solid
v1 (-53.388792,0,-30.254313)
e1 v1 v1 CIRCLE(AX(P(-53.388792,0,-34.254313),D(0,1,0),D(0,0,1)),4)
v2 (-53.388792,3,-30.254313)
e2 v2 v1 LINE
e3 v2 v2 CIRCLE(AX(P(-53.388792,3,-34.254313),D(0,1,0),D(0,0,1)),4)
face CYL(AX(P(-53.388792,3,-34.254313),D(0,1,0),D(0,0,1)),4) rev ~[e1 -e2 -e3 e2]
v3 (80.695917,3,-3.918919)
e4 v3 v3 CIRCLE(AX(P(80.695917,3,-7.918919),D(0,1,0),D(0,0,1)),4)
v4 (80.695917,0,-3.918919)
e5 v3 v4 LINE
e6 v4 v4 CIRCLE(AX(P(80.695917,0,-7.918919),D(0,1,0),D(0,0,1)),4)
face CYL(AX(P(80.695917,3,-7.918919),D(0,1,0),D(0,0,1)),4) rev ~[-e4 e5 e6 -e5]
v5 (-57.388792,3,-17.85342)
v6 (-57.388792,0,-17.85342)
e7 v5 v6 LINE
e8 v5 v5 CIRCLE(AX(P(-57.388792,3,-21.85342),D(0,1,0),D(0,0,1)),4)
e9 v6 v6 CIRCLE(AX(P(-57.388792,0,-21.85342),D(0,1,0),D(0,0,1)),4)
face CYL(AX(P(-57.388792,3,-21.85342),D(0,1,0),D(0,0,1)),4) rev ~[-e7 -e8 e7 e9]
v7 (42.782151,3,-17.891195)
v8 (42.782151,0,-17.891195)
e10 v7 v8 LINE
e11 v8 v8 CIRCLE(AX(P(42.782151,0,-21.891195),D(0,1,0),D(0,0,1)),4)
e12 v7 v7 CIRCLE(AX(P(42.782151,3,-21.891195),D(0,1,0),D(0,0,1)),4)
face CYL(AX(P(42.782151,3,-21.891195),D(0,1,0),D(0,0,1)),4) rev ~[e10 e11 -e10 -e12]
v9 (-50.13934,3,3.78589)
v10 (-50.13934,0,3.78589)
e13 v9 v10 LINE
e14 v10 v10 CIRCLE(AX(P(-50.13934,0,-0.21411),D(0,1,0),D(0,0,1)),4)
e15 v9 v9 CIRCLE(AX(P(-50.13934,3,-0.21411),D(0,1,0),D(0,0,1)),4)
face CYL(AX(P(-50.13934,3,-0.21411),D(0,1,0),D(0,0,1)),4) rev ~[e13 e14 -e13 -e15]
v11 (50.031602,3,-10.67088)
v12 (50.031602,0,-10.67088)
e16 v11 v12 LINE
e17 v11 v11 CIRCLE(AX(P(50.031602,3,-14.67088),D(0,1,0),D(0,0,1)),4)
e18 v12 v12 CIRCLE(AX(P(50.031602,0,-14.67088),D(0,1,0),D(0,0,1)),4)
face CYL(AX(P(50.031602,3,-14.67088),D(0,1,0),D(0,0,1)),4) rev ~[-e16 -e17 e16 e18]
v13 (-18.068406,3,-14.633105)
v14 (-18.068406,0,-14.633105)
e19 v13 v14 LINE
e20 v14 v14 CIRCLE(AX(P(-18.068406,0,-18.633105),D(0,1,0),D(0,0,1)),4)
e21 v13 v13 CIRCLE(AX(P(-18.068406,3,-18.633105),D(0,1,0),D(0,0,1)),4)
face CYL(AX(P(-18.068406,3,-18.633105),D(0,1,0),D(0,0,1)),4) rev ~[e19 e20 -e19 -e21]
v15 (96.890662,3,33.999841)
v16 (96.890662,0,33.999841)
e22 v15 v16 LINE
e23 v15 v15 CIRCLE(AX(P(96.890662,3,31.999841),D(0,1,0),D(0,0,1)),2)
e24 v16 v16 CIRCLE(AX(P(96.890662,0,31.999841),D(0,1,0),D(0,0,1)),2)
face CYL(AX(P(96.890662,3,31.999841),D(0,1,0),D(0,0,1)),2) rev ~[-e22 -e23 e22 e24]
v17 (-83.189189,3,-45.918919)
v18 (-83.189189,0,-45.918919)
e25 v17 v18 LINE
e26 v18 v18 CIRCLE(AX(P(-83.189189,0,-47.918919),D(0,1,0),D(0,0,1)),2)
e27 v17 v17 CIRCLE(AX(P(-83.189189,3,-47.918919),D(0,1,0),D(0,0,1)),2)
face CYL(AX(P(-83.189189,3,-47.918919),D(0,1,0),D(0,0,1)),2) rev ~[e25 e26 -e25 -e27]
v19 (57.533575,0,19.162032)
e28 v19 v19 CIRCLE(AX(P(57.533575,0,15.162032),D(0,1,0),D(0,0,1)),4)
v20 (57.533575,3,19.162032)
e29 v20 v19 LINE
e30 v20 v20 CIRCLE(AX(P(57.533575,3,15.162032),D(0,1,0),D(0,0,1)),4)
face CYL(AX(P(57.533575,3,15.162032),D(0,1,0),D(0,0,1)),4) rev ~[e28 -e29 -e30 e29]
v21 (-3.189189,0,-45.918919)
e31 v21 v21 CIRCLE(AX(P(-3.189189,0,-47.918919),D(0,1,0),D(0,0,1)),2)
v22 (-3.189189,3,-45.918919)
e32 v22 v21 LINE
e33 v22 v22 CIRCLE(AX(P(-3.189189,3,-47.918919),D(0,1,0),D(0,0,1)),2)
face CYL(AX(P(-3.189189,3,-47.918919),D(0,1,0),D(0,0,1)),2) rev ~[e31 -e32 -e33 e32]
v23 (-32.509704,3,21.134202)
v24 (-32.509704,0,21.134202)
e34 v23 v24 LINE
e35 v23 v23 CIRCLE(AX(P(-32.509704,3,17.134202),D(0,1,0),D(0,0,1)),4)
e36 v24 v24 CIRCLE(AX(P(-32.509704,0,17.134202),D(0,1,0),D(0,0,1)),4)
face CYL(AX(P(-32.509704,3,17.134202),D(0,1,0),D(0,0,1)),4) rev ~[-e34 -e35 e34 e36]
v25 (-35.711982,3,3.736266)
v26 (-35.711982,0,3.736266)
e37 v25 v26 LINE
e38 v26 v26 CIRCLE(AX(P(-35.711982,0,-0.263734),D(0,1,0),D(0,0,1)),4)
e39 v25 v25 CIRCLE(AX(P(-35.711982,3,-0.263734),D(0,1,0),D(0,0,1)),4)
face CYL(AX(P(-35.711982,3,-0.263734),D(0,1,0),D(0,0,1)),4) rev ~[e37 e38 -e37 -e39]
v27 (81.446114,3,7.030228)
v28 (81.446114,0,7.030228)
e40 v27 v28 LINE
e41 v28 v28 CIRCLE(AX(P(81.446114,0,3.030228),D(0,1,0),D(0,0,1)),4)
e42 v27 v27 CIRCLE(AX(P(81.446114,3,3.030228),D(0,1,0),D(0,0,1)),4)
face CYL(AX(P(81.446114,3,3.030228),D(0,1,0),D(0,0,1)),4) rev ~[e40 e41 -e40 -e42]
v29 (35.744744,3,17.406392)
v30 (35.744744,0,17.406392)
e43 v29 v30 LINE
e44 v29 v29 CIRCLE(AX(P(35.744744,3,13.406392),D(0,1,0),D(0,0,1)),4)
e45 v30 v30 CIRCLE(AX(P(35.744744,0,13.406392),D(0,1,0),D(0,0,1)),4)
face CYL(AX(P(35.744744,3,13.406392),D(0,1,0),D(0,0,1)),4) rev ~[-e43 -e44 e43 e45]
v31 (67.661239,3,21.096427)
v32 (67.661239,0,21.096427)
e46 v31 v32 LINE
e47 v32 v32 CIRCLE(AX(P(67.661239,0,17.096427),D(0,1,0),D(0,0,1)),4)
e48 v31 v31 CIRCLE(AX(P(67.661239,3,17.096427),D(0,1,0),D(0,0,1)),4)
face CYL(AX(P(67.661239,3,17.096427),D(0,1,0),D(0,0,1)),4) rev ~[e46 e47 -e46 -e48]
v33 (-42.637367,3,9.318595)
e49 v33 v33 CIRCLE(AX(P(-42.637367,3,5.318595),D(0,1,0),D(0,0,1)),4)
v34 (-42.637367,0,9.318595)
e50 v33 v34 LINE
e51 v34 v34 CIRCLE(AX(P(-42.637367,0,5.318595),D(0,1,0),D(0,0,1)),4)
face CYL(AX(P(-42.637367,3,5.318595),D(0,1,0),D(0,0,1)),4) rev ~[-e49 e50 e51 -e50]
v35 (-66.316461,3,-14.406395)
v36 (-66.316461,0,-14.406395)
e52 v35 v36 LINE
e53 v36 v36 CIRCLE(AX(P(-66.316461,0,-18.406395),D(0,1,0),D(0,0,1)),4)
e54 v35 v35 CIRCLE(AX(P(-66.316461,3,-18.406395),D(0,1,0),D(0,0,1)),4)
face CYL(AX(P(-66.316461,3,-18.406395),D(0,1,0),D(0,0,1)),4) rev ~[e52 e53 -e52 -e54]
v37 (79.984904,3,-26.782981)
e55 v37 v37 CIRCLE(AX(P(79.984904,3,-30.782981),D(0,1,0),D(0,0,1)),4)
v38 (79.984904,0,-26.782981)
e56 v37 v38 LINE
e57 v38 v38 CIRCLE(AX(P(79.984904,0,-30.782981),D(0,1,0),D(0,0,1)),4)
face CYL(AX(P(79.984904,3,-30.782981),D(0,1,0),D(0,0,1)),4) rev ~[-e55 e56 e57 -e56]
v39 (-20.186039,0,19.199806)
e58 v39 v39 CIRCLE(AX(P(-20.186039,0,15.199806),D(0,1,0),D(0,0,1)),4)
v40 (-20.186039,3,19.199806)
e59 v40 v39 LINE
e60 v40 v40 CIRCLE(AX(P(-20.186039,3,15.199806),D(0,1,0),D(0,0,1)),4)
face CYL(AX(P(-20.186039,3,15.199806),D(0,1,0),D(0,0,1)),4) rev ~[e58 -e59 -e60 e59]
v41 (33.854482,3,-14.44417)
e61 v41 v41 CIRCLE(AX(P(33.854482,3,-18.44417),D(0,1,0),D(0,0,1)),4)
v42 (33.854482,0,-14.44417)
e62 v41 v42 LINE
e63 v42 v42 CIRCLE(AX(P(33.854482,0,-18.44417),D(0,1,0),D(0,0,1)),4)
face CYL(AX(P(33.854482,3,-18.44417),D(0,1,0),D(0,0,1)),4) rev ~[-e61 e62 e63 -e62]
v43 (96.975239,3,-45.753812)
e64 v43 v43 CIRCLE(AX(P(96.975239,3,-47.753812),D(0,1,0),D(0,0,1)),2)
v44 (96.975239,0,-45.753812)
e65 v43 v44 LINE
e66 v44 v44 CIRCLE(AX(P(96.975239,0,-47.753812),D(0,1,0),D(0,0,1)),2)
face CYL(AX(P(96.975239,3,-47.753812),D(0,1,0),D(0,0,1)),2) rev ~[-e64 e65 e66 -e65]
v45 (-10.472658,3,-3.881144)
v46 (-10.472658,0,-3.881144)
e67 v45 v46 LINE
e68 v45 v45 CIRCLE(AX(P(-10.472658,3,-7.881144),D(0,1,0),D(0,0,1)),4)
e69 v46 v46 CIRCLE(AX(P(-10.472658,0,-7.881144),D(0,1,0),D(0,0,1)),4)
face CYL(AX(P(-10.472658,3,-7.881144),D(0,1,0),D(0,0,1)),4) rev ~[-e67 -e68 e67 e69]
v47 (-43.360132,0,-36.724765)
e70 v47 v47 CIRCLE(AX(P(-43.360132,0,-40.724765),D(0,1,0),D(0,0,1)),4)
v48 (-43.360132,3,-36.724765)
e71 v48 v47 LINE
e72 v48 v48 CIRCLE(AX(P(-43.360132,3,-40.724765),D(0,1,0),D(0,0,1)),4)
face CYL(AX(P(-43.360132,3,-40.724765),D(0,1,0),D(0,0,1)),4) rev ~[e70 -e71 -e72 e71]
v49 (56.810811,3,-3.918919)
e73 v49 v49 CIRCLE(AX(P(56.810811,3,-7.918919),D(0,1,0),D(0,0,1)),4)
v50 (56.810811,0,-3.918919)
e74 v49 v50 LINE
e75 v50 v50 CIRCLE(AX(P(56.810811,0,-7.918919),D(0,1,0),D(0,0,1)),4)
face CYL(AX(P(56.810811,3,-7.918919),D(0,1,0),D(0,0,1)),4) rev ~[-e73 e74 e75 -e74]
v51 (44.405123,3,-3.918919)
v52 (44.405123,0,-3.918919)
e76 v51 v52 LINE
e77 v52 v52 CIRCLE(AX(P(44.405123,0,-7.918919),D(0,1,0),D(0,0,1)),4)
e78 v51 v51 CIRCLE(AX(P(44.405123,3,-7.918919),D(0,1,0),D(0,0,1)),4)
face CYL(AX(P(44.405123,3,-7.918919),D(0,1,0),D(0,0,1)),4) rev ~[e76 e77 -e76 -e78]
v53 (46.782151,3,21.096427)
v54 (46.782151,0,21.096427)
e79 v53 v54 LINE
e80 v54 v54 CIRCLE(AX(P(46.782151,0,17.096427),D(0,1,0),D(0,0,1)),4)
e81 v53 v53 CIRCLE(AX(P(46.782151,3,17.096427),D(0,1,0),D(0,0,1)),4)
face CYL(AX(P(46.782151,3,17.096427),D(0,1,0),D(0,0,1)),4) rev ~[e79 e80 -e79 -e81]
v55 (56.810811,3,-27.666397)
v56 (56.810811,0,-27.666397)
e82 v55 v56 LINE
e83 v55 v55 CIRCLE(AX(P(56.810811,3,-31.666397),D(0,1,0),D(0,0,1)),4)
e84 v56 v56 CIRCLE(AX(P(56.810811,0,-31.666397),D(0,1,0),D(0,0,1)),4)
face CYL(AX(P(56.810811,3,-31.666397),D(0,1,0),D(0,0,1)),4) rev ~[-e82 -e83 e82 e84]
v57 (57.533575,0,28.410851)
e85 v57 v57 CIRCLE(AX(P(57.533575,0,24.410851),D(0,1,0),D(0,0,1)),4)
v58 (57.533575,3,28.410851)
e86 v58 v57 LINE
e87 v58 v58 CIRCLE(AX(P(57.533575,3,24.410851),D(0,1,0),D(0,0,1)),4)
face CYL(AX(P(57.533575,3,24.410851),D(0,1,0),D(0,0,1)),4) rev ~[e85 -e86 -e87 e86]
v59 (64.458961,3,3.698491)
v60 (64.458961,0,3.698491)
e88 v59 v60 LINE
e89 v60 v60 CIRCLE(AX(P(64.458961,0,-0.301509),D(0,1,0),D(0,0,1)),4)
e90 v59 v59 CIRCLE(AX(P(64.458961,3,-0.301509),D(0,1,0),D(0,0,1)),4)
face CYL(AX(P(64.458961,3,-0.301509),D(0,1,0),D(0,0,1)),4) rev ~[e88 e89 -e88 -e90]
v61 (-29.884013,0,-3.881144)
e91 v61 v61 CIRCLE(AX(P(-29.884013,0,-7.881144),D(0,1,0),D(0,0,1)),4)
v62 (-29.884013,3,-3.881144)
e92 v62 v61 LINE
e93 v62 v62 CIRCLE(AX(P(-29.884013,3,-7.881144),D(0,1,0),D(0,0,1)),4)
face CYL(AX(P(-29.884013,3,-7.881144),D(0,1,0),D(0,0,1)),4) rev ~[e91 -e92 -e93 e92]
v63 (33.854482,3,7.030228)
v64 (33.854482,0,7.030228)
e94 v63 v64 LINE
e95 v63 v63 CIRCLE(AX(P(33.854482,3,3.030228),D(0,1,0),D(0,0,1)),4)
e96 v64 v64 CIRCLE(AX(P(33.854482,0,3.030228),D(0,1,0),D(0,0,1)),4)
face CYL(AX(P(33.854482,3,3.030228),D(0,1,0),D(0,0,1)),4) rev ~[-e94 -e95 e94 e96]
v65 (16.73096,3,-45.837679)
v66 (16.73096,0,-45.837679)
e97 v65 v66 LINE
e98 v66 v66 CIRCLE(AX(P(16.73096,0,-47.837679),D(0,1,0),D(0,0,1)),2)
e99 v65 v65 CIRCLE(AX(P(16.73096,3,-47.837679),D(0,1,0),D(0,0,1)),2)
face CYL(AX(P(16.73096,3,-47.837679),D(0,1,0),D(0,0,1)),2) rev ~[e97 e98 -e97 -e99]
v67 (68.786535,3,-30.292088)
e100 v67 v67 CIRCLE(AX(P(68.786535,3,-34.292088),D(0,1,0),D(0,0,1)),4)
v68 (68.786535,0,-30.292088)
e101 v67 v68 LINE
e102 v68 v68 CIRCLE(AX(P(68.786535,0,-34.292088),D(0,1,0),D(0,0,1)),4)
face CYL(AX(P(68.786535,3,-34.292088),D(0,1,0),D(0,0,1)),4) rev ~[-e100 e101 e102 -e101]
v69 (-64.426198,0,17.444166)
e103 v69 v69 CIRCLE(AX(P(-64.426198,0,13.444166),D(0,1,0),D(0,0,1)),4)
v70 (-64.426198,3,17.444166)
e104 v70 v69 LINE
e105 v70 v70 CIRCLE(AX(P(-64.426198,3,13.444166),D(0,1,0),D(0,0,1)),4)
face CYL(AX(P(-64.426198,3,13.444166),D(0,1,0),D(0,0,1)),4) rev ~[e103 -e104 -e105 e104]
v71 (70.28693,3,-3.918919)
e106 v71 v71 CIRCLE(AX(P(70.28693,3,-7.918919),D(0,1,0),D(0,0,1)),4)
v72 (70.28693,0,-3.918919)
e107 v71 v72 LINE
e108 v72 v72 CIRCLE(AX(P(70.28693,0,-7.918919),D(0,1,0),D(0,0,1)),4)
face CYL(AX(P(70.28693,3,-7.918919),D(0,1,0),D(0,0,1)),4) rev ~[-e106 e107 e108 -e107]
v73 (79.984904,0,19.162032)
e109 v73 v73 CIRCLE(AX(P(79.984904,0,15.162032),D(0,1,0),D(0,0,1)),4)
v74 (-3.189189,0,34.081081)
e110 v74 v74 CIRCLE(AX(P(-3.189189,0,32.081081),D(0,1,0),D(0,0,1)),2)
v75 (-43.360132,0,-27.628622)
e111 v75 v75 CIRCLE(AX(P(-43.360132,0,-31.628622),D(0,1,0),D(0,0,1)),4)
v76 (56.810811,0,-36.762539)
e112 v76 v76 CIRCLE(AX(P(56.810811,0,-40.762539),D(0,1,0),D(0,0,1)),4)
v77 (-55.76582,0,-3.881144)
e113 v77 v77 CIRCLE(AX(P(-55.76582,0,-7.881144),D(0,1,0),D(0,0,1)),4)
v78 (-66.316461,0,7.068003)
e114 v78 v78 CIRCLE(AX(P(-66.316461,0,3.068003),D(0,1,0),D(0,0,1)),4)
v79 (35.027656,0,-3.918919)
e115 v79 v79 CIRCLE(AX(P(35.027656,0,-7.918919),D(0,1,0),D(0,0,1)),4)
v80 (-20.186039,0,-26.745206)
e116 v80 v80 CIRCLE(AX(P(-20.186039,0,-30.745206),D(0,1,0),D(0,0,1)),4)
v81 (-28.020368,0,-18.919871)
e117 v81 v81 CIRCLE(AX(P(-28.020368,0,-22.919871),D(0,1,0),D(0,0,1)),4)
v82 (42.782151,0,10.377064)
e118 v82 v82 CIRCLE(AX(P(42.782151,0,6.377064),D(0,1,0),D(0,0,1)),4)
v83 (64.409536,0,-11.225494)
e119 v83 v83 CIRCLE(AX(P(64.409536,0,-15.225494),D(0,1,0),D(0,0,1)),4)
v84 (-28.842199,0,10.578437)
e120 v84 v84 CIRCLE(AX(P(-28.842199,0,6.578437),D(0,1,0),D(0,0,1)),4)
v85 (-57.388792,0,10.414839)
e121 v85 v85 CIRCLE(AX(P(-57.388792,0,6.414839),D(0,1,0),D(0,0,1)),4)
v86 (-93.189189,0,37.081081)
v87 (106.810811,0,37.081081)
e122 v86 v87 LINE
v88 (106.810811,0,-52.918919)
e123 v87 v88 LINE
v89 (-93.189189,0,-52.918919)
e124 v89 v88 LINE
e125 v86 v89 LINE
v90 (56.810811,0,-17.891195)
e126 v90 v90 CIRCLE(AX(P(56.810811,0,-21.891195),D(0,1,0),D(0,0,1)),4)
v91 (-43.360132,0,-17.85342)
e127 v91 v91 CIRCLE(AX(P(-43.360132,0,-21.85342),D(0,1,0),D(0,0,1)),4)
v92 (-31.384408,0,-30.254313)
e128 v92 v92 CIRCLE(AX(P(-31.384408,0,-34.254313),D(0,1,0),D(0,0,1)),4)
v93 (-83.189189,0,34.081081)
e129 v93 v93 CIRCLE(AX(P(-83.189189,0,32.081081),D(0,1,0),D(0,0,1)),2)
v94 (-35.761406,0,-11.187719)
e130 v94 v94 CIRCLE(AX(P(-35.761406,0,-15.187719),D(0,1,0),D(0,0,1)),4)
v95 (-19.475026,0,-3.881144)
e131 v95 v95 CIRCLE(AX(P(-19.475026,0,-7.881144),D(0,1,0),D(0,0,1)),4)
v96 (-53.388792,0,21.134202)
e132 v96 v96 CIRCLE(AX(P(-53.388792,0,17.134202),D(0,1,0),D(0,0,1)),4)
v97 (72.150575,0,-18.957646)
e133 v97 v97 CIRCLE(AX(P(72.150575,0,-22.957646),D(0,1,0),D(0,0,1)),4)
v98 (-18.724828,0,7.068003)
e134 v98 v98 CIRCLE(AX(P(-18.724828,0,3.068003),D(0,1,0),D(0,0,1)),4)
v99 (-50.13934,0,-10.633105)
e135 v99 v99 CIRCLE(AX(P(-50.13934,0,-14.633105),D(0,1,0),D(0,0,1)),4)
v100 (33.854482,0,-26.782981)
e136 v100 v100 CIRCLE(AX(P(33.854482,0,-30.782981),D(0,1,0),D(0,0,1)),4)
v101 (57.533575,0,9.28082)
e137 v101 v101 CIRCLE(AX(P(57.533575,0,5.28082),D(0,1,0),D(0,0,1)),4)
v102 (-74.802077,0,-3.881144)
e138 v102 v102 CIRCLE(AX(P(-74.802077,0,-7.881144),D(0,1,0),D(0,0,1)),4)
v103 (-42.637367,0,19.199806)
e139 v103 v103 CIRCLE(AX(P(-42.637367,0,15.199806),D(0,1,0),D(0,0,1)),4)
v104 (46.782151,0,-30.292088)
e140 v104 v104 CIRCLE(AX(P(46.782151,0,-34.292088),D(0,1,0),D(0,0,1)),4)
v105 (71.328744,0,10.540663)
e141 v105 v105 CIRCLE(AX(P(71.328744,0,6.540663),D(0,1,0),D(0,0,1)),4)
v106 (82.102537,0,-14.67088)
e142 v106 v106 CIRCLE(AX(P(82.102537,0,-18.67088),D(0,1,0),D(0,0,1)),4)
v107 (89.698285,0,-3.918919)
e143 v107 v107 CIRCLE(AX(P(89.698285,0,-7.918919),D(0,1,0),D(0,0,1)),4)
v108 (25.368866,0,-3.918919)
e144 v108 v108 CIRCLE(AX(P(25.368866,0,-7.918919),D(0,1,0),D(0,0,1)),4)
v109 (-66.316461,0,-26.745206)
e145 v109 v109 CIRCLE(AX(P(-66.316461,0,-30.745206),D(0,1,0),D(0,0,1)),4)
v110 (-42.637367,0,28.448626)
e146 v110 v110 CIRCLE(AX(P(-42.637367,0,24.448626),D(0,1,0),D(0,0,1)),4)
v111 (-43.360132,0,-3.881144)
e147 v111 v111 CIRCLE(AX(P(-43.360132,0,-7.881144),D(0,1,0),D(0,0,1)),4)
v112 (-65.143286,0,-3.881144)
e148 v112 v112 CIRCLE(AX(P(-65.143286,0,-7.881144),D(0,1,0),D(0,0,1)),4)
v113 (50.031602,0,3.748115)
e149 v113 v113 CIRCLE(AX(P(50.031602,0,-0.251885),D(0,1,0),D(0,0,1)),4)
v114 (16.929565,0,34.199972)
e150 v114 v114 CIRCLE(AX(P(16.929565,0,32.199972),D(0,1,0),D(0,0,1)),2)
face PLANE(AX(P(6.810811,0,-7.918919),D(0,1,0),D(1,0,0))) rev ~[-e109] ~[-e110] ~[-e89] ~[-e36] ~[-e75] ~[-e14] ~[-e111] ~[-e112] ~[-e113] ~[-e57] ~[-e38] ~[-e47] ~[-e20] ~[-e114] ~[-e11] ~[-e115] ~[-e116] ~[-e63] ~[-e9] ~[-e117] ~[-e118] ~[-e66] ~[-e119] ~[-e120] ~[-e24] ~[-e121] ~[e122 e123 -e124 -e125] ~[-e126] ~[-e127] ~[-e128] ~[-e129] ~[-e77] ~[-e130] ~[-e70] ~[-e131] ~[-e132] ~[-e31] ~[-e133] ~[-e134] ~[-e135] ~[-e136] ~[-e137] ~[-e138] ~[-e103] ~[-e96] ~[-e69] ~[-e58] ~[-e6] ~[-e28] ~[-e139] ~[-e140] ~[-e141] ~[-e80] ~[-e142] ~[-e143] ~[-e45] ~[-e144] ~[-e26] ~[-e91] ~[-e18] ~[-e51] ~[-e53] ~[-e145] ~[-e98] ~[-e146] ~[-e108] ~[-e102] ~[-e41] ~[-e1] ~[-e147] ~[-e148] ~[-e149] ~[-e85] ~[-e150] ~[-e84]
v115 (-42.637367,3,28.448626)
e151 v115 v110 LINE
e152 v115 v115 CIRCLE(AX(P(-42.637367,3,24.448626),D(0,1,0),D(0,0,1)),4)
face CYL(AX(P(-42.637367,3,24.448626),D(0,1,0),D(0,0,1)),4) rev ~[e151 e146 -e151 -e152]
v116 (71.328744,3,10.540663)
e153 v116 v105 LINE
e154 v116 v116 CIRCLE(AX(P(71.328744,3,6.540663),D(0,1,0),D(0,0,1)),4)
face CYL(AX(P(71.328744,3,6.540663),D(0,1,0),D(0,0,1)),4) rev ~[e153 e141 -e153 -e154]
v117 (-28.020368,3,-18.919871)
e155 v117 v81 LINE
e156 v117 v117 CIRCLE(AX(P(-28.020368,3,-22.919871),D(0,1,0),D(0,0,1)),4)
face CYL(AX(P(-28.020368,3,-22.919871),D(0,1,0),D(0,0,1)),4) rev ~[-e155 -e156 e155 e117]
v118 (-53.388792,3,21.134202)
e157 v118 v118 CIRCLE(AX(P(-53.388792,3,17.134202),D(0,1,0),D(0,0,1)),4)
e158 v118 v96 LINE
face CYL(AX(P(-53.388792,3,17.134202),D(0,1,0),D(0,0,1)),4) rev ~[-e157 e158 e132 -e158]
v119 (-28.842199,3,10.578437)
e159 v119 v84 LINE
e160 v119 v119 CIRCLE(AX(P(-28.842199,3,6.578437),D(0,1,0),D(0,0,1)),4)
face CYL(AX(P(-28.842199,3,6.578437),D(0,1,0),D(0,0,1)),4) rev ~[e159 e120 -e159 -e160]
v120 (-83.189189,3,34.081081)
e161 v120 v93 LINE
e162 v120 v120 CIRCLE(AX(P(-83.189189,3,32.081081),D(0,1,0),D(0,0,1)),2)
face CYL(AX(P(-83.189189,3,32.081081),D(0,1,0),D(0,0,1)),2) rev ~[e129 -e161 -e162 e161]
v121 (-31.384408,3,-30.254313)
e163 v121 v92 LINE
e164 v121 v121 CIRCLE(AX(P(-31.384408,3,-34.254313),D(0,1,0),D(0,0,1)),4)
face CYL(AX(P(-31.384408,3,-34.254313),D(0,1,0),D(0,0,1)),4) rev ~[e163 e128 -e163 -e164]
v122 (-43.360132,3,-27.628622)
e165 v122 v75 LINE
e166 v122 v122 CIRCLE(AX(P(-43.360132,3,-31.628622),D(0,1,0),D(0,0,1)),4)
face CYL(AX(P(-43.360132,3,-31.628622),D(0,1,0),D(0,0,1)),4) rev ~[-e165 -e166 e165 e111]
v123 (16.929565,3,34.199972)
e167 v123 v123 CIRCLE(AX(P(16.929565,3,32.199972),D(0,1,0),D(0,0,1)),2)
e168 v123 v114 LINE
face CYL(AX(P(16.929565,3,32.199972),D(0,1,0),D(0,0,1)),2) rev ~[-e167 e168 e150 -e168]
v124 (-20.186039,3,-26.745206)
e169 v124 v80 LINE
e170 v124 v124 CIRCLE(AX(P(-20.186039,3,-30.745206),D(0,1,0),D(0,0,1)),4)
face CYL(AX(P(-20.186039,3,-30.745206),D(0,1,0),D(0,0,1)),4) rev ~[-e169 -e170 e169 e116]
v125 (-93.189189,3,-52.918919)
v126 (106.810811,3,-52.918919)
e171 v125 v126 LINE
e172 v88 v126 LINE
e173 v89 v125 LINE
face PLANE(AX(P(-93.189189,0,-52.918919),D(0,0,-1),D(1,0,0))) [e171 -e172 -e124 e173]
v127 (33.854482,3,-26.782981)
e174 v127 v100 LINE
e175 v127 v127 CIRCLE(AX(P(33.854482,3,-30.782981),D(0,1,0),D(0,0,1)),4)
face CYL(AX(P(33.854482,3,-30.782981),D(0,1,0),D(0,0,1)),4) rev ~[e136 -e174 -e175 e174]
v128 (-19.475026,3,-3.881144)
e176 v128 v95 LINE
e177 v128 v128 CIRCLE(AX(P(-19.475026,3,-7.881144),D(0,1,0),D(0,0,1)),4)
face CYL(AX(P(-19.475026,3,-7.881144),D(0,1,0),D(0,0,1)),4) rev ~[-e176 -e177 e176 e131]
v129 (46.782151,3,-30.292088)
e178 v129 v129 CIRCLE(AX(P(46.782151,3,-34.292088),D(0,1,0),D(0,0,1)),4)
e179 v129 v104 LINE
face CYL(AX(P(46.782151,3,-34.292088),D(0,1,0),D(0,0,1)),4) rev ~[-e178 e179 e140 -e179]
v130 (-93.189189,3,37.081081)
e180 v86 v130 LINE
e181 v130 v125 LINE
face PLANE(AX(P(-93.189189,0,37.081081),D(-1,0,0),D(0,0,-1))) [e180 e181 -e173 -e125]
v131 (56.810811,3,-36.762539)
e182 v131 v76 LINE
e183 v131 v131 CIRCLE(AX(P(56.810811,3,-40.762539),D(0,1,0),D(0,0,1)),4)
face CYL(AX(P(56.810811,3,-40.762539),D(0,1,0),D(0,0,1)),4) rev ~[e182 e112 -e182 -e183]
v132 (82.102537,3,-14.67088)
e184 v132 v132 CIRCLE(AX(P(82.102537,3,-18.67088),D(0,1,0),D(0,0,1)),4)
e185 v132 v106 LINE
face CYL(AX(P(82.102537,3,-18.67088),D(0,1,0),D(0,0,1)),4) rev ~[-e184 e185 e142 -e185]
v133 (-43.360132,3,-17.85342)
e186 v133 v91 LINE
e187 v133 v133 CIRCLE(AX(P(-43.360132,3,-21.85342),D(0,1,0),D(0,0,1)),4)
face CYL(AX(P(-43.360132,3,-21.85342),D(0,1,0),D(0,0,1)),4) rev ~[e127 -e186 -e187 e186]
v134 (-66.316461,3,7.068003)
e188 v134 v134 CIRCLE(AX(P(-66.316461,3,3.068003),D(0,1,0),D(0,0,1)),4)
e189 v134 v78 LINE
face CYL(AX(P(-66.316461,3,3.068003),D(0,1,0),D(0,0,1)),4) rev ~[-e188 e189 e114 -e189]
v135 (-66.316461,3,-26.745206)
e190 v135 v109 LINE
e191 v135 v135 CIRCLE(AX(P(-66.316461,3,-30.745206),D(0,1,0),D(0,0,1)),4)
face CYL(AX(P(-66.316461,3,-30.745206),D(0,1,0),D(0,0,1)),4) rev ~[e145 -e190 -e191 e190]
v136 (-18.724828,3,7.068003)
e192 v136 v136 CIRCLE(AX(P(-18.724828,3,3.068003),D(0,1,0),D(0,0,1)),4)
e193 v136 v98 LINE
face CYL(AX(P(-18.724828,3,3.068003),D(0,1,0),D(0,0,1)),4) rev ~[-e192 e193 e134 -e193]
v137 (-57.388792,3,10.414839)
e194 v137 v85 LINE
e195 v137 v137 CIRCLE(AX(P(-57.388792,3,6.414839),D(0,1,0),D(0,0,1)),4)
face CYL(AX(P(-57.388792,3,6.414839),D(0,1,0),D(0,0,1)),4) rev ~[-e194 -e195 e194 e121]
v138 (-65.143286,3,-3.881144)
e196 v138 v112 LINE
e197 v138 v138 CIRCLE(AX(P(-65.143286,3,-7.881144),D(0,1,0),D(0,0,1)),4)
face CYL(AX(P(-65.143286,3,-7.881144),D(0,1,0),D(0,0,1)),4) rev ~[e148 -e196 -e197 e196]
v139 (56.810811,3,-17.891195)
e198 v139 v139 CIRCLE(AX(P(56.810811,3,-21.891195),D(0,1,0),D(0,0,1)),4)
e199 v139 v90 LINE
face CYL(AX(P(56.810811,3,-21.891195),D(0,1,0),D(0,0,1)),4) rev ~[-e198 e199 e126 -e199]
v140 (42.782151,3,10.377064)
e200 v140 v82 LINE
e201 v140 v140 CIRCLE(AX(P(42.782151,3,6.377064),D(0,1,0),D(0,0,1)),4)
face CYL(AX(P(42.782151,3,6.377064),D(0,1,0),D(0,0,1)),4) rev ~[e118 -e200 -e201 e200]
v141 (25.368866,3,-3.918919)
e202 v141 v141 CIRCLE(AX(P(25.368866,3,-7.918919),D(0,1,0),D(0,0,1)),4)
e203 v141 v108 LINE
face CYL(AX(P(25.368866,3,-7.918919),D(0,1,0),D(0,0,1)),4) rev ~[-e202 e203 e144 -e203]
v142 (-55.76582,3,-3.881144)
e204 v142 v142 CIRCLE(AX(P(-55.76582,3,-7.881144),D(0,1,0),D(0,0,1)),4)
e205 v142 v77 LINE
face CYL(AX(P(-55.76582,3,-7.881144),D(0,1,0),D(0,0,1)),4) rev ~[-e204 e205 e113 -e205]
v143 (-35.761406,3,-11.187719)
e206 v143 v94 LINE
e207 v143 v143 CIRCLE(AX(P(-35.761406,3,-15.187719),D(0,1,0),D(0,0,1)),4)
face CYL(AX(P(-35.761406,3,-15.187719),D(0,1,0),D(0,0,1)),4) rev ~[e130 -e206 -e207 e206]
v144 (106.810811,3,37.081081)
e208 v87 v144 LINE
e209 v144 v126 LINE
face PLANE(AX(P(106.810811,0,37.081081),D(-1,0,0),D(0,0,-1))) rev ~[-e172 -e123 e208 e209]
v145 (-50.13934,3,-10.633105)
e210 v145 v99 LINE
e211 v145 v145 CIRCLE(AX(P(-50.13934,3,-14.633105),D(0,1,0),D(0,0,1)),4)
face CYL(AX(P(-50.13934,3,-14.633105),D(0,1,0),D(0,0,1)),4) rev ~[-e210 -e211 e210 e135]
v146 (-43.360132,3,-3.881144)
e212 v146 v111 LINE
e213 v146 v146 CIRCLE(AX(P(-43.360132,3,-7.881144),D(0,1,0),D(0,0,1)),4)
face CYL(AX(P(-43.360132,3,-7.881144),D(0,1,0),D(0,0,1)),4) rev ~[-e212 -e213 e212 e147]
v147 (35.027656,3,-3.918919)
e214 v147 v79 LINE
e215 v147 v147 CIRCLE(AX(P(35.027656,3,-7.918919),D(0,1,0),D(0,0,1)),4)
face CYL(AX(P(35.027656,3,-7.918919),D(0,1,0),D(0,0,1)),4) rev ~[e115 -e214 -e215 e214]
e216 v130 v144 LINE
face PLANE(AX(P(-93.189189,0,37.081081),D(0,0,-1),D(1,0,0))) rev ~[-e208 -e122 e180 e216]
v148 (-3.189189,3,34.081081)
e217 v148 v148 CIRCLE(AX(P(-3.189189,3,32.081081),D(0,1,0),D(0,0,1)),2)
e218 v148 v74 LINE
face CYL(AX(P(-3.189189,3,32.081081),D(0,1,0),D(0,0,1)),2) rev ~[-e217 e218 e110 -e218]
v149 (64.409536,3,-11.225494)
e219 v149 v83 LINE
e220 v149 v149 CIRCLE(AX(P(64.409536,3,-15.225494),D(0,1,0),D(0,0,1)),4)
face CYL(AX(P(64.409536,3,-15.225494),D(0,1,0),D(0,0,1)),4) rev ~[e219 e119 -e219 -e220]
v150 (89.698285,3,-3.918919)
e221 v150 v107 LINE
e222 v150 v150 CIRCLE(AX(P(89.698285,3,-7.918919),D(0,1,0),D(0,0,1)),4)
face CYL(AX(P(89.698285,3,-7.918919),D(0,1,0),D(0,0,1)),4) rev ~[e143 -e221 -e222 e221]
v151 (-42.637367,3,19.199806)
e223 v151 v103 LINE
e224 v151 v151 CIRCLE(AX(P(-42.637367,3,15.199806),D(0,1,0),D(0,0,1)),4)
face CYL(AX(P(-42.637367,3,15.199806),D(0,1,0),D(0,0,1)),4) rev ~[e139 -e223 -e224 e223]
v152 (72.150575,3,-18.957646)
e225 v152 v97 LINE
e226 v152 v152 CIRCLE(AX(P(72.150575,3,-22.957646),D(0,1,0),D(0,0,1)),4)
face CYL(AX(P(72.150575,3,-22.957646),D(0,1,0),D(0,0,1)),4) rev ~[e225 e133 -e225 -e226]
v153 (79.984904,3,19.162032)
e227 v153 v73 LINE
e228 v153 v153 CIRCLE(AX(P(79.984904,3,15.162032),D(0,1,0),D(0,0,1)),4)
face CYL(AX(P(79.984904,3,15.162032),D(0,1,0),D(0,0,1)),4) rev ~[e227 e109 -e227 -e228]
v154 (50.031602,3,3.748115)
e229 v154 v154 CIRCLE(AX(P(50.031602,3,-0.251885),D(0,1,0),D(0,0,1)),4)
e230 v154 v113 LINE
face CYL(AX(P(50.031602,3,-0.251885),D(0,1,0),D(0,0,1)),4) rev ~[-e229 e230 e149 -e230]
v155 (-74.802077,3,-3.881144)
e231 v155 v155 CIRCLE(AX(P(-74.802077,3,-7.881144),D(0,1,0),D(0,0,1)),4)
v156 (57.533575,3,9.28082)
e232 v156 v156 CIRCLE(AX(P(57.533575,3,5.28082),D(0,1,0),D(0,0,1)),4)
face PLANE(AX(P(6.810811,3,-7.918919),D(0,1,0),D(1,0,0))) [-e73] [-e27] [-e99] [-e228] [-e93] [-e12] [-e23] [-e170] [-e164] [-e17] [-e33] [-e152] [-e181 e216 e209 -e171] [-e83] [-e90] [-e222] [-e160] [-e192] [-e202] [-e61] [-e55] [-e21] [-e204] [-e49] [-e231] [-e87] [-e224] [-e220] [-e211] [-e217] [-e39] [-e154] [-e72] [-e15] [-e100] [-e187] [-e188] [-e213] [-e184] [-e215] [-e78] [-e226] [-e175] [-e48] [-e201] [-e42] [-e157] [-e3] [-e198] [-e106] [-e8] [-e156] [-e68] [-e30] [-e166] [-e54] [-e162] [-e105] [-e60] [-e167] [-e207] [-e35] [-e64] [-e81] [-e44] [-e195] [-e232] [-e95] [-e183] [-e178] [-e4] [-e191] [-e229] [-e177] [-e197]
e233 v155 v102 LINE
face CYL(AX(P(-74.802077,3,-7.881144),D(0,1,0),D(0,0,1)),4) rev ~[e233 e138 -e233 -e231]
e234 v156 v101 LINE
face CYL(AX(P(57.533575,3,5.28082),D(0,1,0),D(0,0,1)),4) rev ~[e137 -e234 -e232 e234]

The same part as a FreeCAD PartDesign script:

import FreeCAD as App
import Part
import Sketcher
from FreeCAD import Vector


def add_polygon(sketch, points):
    """Adds a closed chain of lines whose ends are joined by coincident constraints."""
    first, n = sketch.GeometryCount, len(points)
    for a, b in zip(points, points[1:] + points[:1]):
        sketch.addGeometry(Part.LineSegment(App.Vector(*a, 0), App.Vector(*b, 0)), False)
    for i in range(n):
        sketch.addConstraint(Sketcher.Constraint("Coincident", first + i, 2, first + (i + 1) % n, 1))

doc = App.newDocument("Part")
body = doc.addObject("PartDesign::Body", "Body")

sketch1 = body.newObject("Sketcher::SketchObject", "Sketch")
sketch1.AttachmentSupport = (doc.getObject("XZ_Plane"), [""])
sketch1.MapMode = "FlatFace"
add_polygon(sketch1, [(-93.189189, -52.918919), (-93.189189, 37.081081), (106.810811, 37.081081), (106.810811, -52.918919)])
sketch1.addConstraint(Sketcher.Constraint("Vertical", 0))
sketch1.addConstraint(Sketcher.Constraint("Horizontal", 1))
sketch1.addConstraint(Sketcher.Constraint("Vertical", 2))
sketch1.addConstraint(Sketcher.Constraint("Horizontal", 3))
sketch1.addConstraint(Sketcher.Constraint("DistanceX", 1, 1, 1, 2, 200.0))
sketch1.addConstraint(Sketcher.Constraint("DistanceY", 0, 1, 0, 2, 90.0))
sketch1.addConstraint(Sketcher.Constraint("DistanceX", 0, 2, -1, 1, 93.189189))
sketch1.addConstraint(Sketcher.Constraint("DistanceY", -1, 1, 0, 2, 37.081081))
pad1 = body.newObject("PartDesign::Pad", "Pad")
pad1.Profile = sketch1
pad1.Length = 3
pad1.Reversed = True

sketch2 = body.newObject("Sketcher::SketchObject", "Sketch001")
sketch2.AttachmentSupport = (doc.getObject("XZ_Plane"), [""])
sketch2.MapMode = "FlatFace"
sketch2.AttachmentOffset = App.Placement(Vector(0, 0, -3), App.Rotation())
sketch2.addGeometry(Part.Circle(Vector(-83.189189, -47.918919, 0), Vector(0, 0, 1), 2), False)
sketch2.addGeometry(Part.Circle(Vector(-83.189189, 32.081081, 0), Vector(0, 0, 1), 2), False)
sketch2.addGeometry(Part.Circle(Vector(-3.189189, -47.918919, 0), Vector(0, 0, 1), 2), False)
sketch2.addGeometry(Part.Circle(Vector(-3.189189, 32.081081, 0), Vector(0, 0, 1), 2), False)
sketch2.addGeometry(Part.Circle(Vector(96.975239, -47.753812, 0), Vector(0, 0, 1), 2), False)
sketch2.addGeometry(Part.Circle(Vector(96.890662, 31.999841, 0), Vector(0, 0, 1), 2), False)
sketch2.addGeometry(Part.Circle(Vector(16.73096, -47.837679, 0), Vector(0, 0, 1), 2), False)
sketch2.addGeometry(Part.Circle(Vector(16.929565, 32.199972, 0), Vector(0, 0, 1), 2), False)
sketch2.addGeometry(Part.Circle(Vector(64.409536, -15.225494, 0), Vector(0, 0, 1), 4), False)
sketch2.addGeometry(Part.Circle(Vector(64.458961, -0.301509, 0), Vector(0, 0, 1), 4), False)
sketch2.addGeometry(Part.Circle(Vector(72.150575, -22.957646, 0), Vector(0, 0, 1), 4), False)
sketch2.addGeometry(Part.Circle(Vector(79.984904, -30.782981, 0), Vector(0, 0, 1), 4), False)
sketch2.addGeometry(Part.Circle(Vector(42.782151, 6.377064, 0), Vector(0, 0, 1), 4), False)
sketch2.addGeometry(Part.Circle(Vector(35.744744, 13.406392, 0), Vector(0, 0, 1), 4), False)
sketch2.addGeometry(Part.Circle(Vector(50.031602, -0.251885, 0), Vector(0, 0, 1), 4), False)
sketch2.addGeometry(Part.Circle(Vector(71.328744, 6.540663, 0), Vector(0, 0, 1), 4), False)
sketch2.addGeometry(Part.Circle(Vector(56.810811, -7.918919, 0), Vector(0, 0, 1), 4), False)
sketch2.addGeometry(Part.Circle(Vector(79.984904, 15.162032, 0), Vector(0, 0, 1), 4), False)
sketch2.addGeometry(Part.Circle(Vector(50.031602, -14.67088, 0), Vector(0, 0, 1), 4), False)
sketch2.addGeometry(Part.Circle(Vector(42.782151, -21.891195, 0), Vector(0, 0, 1), 4), False)
sketch2.addGeometry(Part.Circle(Vector(33.854482, -30.782981, 0), Vector(0, 0, 1), 4), False)
sketch2.addGeometry(Part.Circle(Vector(70.28693, -7.918919, 0), Vector(0, 0, 1), 4), False)
sketch2.addGeometry(Part.Circle(Vector(80.695917, -7.918919, 0), Vector(0, 0, 1), 4), False)
sketch2.addGeometry(Part.Circle(Vector(89.698285, -7.918919, 0), Vector(0, 0, 1), 4), False)
sketch2.addGeometry(Part.Circle(Vector(35.027656, -7.918919, 0), Vector(0, 0, 1), 4), False)
sketch2.addGeometry(Part.Circle(Vector(44.405123, -7.918919, 0), Vector(0, 0, 1), 4), False)
sketch2.addGeometry(Part.Circle(Vector(25.368866, -7.918919, 0), Vector(0, 0, 1), 4), False)
sketch2.addGeometry(Part.Circle(Vector(57.533575, 5.28082, 0), Vector(0, 0, 1), 4), False)
sketch2.addGeometry(Part.Circle(Vector(57.533575, 15.162032, 0), Vector(0, 0, 1), 4), False)
sketch2.addGeometry(Part.Circle(Vector(57.533575, 24.410851, 0), Vector(0, 0, 1), 4), False)
sketch2.addGeometry(Part.Circle(Vector(56.810811, -21.891195, 0), Vector(0, 0, 1), 4), False)
sketch2.addGeometry(Part.Circle(Vector(56.810811, -31.666397, 0), Vector(0, 0, 1), 4), False)
sketch2.addGeometry(Part.Circle(Vector(56.810811, -40.762539, 0), Vector(0, 0, 1), 4), False)
sketch2.addGeometry(Part.Circle(Vector(33.854482, -18.44417, 0), Vector(0, 0, 1), 4), False)
sketch2.addGeometry(Part.Circle(Vector(46.782151, -34.292088, 0), Vector(0, 0, 1), 4), False)
sketch2.addGeometry(Part.Circle(Vector(68.786535, -34.292088, 0), Vector(0, 0, 1), 4), False)
sketch2.addGeometry(Part.Circle(Vector(82.102537, -18.67088, 0), Vector(0, 0, 1), 4), False)
sketch2.addGeometry(Part.Circle(Vector(81.446114, 3.030228, 0), Vector(0, 0, 1), 4), False)
sketch2.addGeometry(Part.Circle(Vector(67.661239, 17.096427, 0), Vector(0, 0, 1), 4), False)
sketch2.addGeometry(Part.Circle(Vector(46.782151, 17.096427, 0), Vector(0, 0, 1), 4), False)
sketch2.addGeometry(Part.Circle(Vector(33.854482, 3.030228, 0), Vector(0, 0, 1), 4), False)
sketch2.addGeometry(Part.Circle(Vector(-35.761406, -15.187719, 0), Vector(0, 0, 1), 4), False)
sketch2.addGeometry(Part.Circle(Vector(-35.711982, -0.263734, 0), Vector(0, 0, 1), 4), False)
sketch2.addGeometry(Part.Circle(Vector(-28.020368, -22.919871, 0), Vector(0, 0, 1), 4), False)
sketch2.addGeometry(Part.Circle(Vector(-20.186039, -30.745206, 0), Vector(0, 0, 1), 4), False)
sketch2.addGeometry(Part.Circle(Vector(-57.388792, 6.414839, 0), Vector(0, 0, 1), 4), False)
sketch2.addGeometry(Part.Circle(Vector(-64.426198, 13.444166, 0), Vector(0, 0, 1), 4), False)
sketch2.addGeometry(Part.Circle(Vector(-50.13934, -0.21411, 0), Vector(0, 0, 1), 4), False)
sketch2.addGeometry(Part.Circle(Vector(-28.842199, 6.578437, 0), Vector(0, 0, 1), 4), False)
sketch2.addGeometry(Part.Circle(Vector(-43.360132, -7.881144, 0), Vector(0, 0, 1), 4), False)
sketch2.addGeometry(Part.Circle(Vector(-20.186039, 15.199806, 0), Vector(0, 0, 1), 4), False)
sketch2.addGeometry(Part.Circle(Vector(-50.13934, -14.633105, 0), Vector(0, 0, 1), 4), False)
sketch2.addGeometry(Part.Circle(Vector(-57.388792, -21.85342, 0), Vector(0, 0, 1), 4), False)
sketch2.addGeometry(Part.Circle(Vector(-66.316461, -30.745206, 0), Vector(0, 0, 1), 4), False)
sketch2.addGeometry(Part.Circle(Vector(-29.884013, -7.881144, 0), Vector(0, 0, 1), 4), False)
sketch2.addGeometry(Part.Circle(Vector(-19.475026, -7.881144, 0), Vector(0, 0, 1), 4), False)
sketch2.addGeometry(Part.Circle(Vector(-10.472658, -7.881144, 0), Vector(0, 0, 1), 4), False)
sketch2.addGeometry(Part.Circle(Vector(-65.143286, -7.881144, 0), Vector(0, 0, 1), 4), False)
sketch2.addGeometry(Part.Circle(Vector(-55.76582, -7.881144, 0), Vector(0, 0, 1), 4), False)
sketch2.addGeometry(Part.Circle(Vector(-74.802077, -7.881144, 0), Vector(0, 0, 1), 4), False)
sketch2.addGeometry(Part.Circle(Vector(-42.637367, 5.318595, 0), Vector(0, 0, 1), 4), False)
sketch2.addGeometry(Part.Circle(Vector(-42.637367, 15.199806, 0), Vector(0, 0, 1), 4), False)
sketch2.addGeometry(Part.Circle(Vector(-42.637367, 24.448626, 0), Vector(0, 0, 1), 4), False)
sketch2.addGeometry(Part.Circle(Vector(-43.360132, -21.85342, 0), Vector(0, 0, 1), 4), False)
sketch2.addGeometry(Part.Circle(Vector(-43.360132, -31.628622, 0), Vector(0, 0, 1), 4), False)
sketch2.addGeometry(Part.Circle(Vector(-43.360132, -40.724765, 0), Vector(0, 0, 1), 4), False)
sketch2.addGeometry(Part.Circle(Vector(-66.316461, -18.406395, 0), Vector(0, 0, 1), 4), False)
sketch2.addGeometry(Part.Circle(Vector(-53.388792, -34.254313, 0), Vector(0, 0, 1), 4), False)
sketch2.addGeometry(Part.Circle(Vector(-31.384408, -34.254313, 0), Vector(0, 0, 1), 4), False)
sketch2.addGeometry(Part.Circle(Vector(-18.068406, -18.633105, 0), Vector(0, 0, 1), 4), False)
sketch2.addGeometry(Part.Circle(Vector(-18.724828, 3.068003, 0), Vector(0, 0, 1), 4), False)
sketch2.addGeometry(Part.Circle(Vector(-32.509704, 17.134202, 0), Vector(0, 0, 1), 4), False)
sketch2.addGeometry(Part.Circle(Vector(-53.388792, 17.134202, 0), Vector(0, 0, 1), 4), False)
sketch2.addGeometry(Part.Circle(Vector(-66.316461, 3.068003, 0), Vector(0, 0, 1), 4), False)
sketch2.addConstraint(Sketcher.Constraint("Equal", 0, 1))
sketch2.addConstraint(Sketcher.Constraint("Equal", 1, 2))
sketch2.addConstraint(Sketcher.Constraint("Equal", 2, 3))
sketch2.addConstraint(Sketcher.Constraint("Equal", 3, 4))
sketch2.addConstraint(Sketcher.Constraint("Equal", 4, 5))
sketch2.addConstraint(Sketcher.Constraint("Equal", 5, 6))
sketch2.addConstraint(Sketcher.Constraint("Equal", 6, 7))
sketch2.addConstraint(Sketcher.Constraint("Equal", 8, 9))
sketch2.addConstraint(Sketcher.Constraint("Equal", 9, 10))
sketch2.addConstraint(Sketcher.Constraint("Equal", 10, 11))
sketch2.addConstraint(Sketcher.Constraint("Equal", 11, 12))
sketch2.addConstraint(Sketcher.Constraint("Equal", 12, 13))
sketch2.addConstraint(Sketcher.Constraint("Equal", 13, 14))
sketch2.addConstraint(Sketcher.Constraint("Equal", 14, 15))
sketch2.addConstraint(Sketcher.Constraint("Equal", 15, 16))
sketch2.addConstraint(Sketcher.Constraint("Equal", 16, 17))
sketch2.addConstraint(Sketcher.Constraint("Equal", 17, 18))
sketch2.addConstraint(Sketcher.Constraint("Equal", 18, 19))
sketch2.addConstraint(Sketcher.Constraint("Equal", 19, 20))
sketch2.addConstraint(Sketcher.Constraint("Equal", 20, 21))
sketch2.addConstraint(Sketcher.Constraint("Equal", 21, 22))
sketch2.addConstraint(Sketcher.Constraint("Equal", 22, 23))
sketch2.addConstraint(Sketcher.Constraint("Equal", 23, 24))
sketch2.addConstraint(Sketcher.Constraint("Equal", 24, 25))
sketch2.addConstraint(Sketcher.Constraint("Equal", 25, 26))
sketch2.addConstraint(Sketcher.Constraint("Equal", 26, 27))
sketch2.addConstraint(Sketcher.Constraint("Equal", 27, 28))
sketch2.addConstraint(Sketcher.Constraint("Equal", 28, 29))
sketch2.addConstraint(Sketcher.Constraint("Equal", 29, 30))
sketch2.addConstraint(Sketcher.Constraint("Equal", 30, 31))
sketch2.addConstraint(Sketcher.Constraint("Equal", 31, 32))
sketch2.addConstraint(Sketcher.Constraint("Equal", 32, 33))
sketch2.addConstraint(Sketcher.Constraint("Equal", 33, 34))
sketch2.addConstraint(Sketcher.Constraint("Equal", 34, 35))
sketch2.addConstraint(Sketcher.Constraint("Equal", 35, 36))
sketch2.addConstraint(Sketcher.Constraint("Equal", 36, 37))
sketch2.addConstraint(Sketcher.Constraint("Equal", 37, 38))
sketch2.addConstraint(Sketcher.Constraint("Equal", 38, 39))
sketch2.addConstraint(Sketcher.Constraint("Equal", 39, 40))
sketch2.addConstraint(Sketcher.Constraint("Equal", 40, 41))
sketch2.addConstraint(Sketcher.Constraint("Equal", 41, 42))
sketch2.addConstraint(Sketcher.Constraint("Equal", 42, 43))
sketch2.addConstraint(Sketcher.Constraint("Equal", 43, 44))
sketch2.addConstraint(Sketcher.Constraint("Equal", 44, 45))
sketch2.addConstraint(Sketcher.Constraint("Equal", 45, 46))
sketch2.addConstraint(Sketcher.Constraint("Equal", 46, 47))
sketch2.addConstraint(Sketcher.Constraint("Equal", 47, 48))
sketch2.addConstraint(Sketcher.Constraint("Equal", 48, 49))
sketch2.addConstraint(Sketcher.Constraint("Equal", 49, 50))
sketch2.addConstraint(Sketcher.Constraint("Equal", 50, 51))
sketch2.addConstraint(Sketcher.Constraint("Equal", 51, 52))
sketch2.addConstraint(Sketcher.Constraint("Equal", 52, 53))
sketch2.addConstraint(Sketcher.Constraint("Equal", 53, 54))
sketch2.addConstraint(Sketcher.Constraint("Equal", 54, 55))
sketch2.addConstraint(Sketcher.Constraint("Equal", 55, 56))
sketch2.addConstraint(Sketcher.Constraint("Equal", 56, 57))
sketch2.addConstraint(Sketcher.Constraint("Equal", 57, 58))
sketch2.addConstraint(Sketcher.Constraint("Equal", 58, 59))
sketch2.addConstraint(Sketcher.Constraint("Equal", 59, 60))
sketch2.addConstraint(Sketcher.Constraint("Equal", 60, 61))
sketch2.addConstraint(Sketcher.Constraint("Equal", 61, 62))
sketch2.addConstraint(Sketcher.Constraint("Equal", 62, 63))
sketch2.addConstraint(Sketcher.Constraint("Equal", 63, 64))
sketch2.addConstraint(Sketcher.Constraint("Equal", 64, 65))
sketch2.addConstraint(Sketcher.Constraint("Equal", 65, 66))
sketch2.addConstraint(Sketcher.Constraint("Equal", 66, 67))
sketch2.addConstraint(Sketcher.Constraint("Equal", 67, 68))
sketch2.addConstraint(Sketcher.Constraint("Equal", 68, 69))
sketch2.addConstraint(Sketcher.Constraint("Equal", 69, 70))
sketch2.addConstraint(Sketcher.Constraint("Equal", 70, 71))
sketch2.addConstraint(Sketcher.Constraint("Equal", 71, 72))
sketch2.addConstraint(Sketcher.Constraint("Equal", 72, 73))
sketch2.addConstraint(Sketcher.Constraint("Horizontal", 0, 3, 2, 3))
sketch2.addConstraint(Sketcher.Constraint("Horizontal", 1, 3, 3, 3))
sketch2.addConstraint(Sketcher.Constraint("Horizontal", 11, 3, 20, 3))
sketch2.addConstraint(Sketcher.Constraint("Horizontal", 16, 3, 21, 3))
sketch2.addConstraint(Sketcher.Constraint("Horizontal", 21, 3, 22, 3))
sketch2.addConstraint(Sketcher.Constraint("Horizontal", 22, 3, 23, 3))
sketch2.addConstraint(Sketcher.Constraint("Horizontal", 23, 3, 24, 3))
sketch2.addConstraint(Sketcher.Constraint("Horizontal", 24, 3, 25, 3))
sketch2.addConstraint(Sketcher.Constraint("Horizontal", 25, 3, 26, 3))
sketch2.addConstraint(Sketcher.Constraint("Horizontal", 17, 3, 28, 3))
sketch2.addConstraint(Sketcher.Constraint("Horizontal", 19, 3, 30, 3))
sketch2.addConstraint(Sketcher.Constraint("Horizontal", 34, 3, 35, 3))
sketch2.addConstraint(Sketcher.Constraint("Horizontal", 38, 3, 39, 3))
sketch2.addConstraint(Sketcher.Constraint("Horizontal", 37, 3, 40, 3))
sketch2.addConstraint(Sketcher.Constraint("Horizontal", 44, 3, 53, 3))
sketch2.addConstraint(Sketcher.Constraint("Horizontal", 49, 3, 54, 3))
sketch2.addConstraint(Sketcher.Constraint("Horizontal", 54, 3, 55, 3))
sketch2.addConstraint(Sketcher.Constraint("Horizontal", 55, 3, 56, 3))
sketch2.addConstraint(Sketcher.Constraint("Horizontal", 56, 3, 57, 3))
sketch2.addConstraint(Sketcher.Constraint("Horizontal", 57, 3, 58, 3))
sketch2.addConstraint(Sketcher.Constraint("Horizontal", 58, 3, 59, 3))
sketch2.addConstraint(Sketcher.Constraint("Horizontal", 50, 3, 61, 3))
sketch2.addConstraint(Sketcher.Constraint("Horizontal", 52, 3, 63, 3))
sketch2.addConstraint(Sketcher.Constraint("Horizontal", 67, 3, 68, 3))
sketch2.addConstraint(Sketcher.Constraint("Horizontal", 71, 3, 72, 3))
sketch2.addConstraint(Sketcher.Constraint("Horizontal", 70, 3, 73, 3))
sketch2.addConstraint(Sketcher.Constraint("Vertical", 0, 3, 1, 3))
sketch2.addConstraint(Sketcher.Constraint("Vertical", 2, 3, 3, 3))
sketch2.addConstraint(Sketcher.Constraint("Vertical", 11, 3, 17, 3))
sketch2.addConstraint(Sketcher.Constraint("Vertical", 14, 3, 18, 3))
sketch2.addConstraint(Sketcher.Constraint("Vertical", 12, 3, 19, 3))
sketch2.addConstraint(Sketcher.Constraint("Vertical", 27, 3, 28, 3))
sketch2.addConstraint(Sketcher.Constraint("Vertical", 28, 3, 29, 3))
sketch2.addConstraint(Sketcher.Constraint("Vertical", 16, 3, 30, 3))
sketch2.addConstraint(Sketcher.Constraint("Vertical", 30, 3, 31, 3))
sketch2.addConstraint(Sketcher.Constraint("Vertical", 31, 3, 32, 3))
sketch2.addConstraint(Sketcher.Constraint("Vertical", 20, 3, 33, 3))
sketch2.addConstraint(Sketcher.Constraint("Vertical", 34, 3, 39, 3))
sketch2.addConstraint(Sketcher.Constraint("Vertical", 33, 3, 40, 3))
sketch2.addConstraint(Sketcher.Constraint("Vertical", 44, 3, 50, 3))
sketch2.addConstraint(Sketcher.Constraint("Vertical", 47, 3, 51, 3))
sketch2.addConstraint(Sketcher.Constraint("Vertical", 45, 3, 52, 3))
sketch2.addConstraint(Sketcher.Constraint("Vertical", 60, 3, 61, 3))
sketch2.addConstraint(Sketcher.Constraint("Vertical", 61, 3, 62, 3))
sketch2.addConstraint(Sketcher.Constraint("Vertical", 49, 3, 63, 3))
sketch2.addConstraint(Sketcher.Constraint("Vertical", 63, 3, 64, 3))
sketch2.addConstraint(Sketcher.Constraint("Vertical", 64, 3, 65, 3))
sketch2.addConstraint(Sketcher.Constraint("Vertical", 53, 3, 66, 3))
sketch2.addConstraint(Sketcher.Constraint("Vertical", 67, 3, 72, 3))
sketch2.addConstraint(Sketcher.Constraint("Vertical", 66, 3, 73, 3))
sketch2.addConstraint(Sketcher.Constraint("Diameter", 0, 4.0))
sketch2.addConstraint(Sketcher.Constraint("Diameter", 8, 8.0))
sketch2.addConstraint(Sketcher.Constraint("DistanceX", 46, 3, -1, 1, 64.426198))
sketch2.addConstraint(Sketcher.Constraint("DistanceX", 48, 3, -1, 1, 28.842199))
sketch2.addConstraint(Sketcher.Constraint("DistanceX", 0, 3, -1, 1, 83.189189))
sketch2.addConstraint(Sketcher.Constraint("DistanceY", 0, 3, -1, 1, 47.918919))
sketch2.addConstraint(Sketcher.Constraint("DistanceY", -1, 1, 1, 3, 32.081081))
sketch2.addConstraint(Sketcher.Constraint("DistanceX", 2, 3, -1, 1, 3.189189))
sketch2.addConstraint(Sketcher.Constraint("DistanceX", -1, 1, 4, 3, 96.975239))
sketch2.addConstraint(Sketcher.Constraint("DistanceY", 4, 3, -1, 1, 47.753812))
sketch2.addConstraint(Sketcher.Constraint("DistanceX", -1, 1, 5, 3, 96.890662))
sketch2.addConstraint(Sketcher.Constraint("DistanceY", -1, 1, 5, 3, 31.999841))
sketch2.addConstraint(Sketcher.Constraint("DistanceX", -1, 1, 6, 3, 16.73096))
sketch2.addConstraint(Sketcher.Constraint("DistanceY", 6, 3, -1, 1, 47.837679))
sketch2.addConstraint(Sketcher.Constraint("DistanceY", -1, 1, 7, 3, 32.199972))
sketch2.addConstraint(Sketcher.Constraint("DistanceX", -1, 1, 9, 3, 64.458961))
sketch2.addConstraint(Sketcher.Constraint("DistanceY", 9, 3, -1, 1, 0.301509))
sketch2.addConstraint(Sketcher.Constraint("DistanceY", 11, 3, -1, 1, 30.782981))
sketch2.addConstraint(Sketcher.Constraint("DistanceX", -1, 1, 12, 3, 42.782151))
sketch2.addConstraint(Sketcher.Constraint("DistanceY", -1, 1, 13, 3, 13.406392))
sketch2.addConstraint(Sketcher.Constraint("DistanceX", -1, 1, 16, 3, 56.810811))
sketch2.addConstraint(Sketcher.Constraint("DistanceY", 16, 3, -1, 1, 7.918919))
sketch2.addConstraint(Sketcher.Constraint("DistanceY", -1, 1, 17, 3, 15.162032))
sketch2.addConstraint(Sketcher.Constraint("DistanceY", 18, 3, -1, 1, 14.67088))
sketch2.addConstraint(Sketcher.Constraint("DistanceX", -1, 1, 20, 3, 33.854482))
sketch2.addConstraint(Sketcher.Constraint("DistanceX", -1, 1, 21, 3, 70.28693))
sketch2.addConstraint(Sketcher.Constraint("DistanceY", -1, 1, 27, 3, 5.28082))
sketch2.addConstraint(Sketcher.Constraint("DistanceY", -1, 1, 29, 3, 24.410851))
sketch2.addConstraint(Sketcher.Constraint("DistanceY", 32, 3, -1, 1, 40.762539))
sketch2.addConstraint(Sketcher.Constraint("DistanceY", 33, 3, -1, 1, 18.44417))
sketch2.addConstraint(Sketcher.Constraint("DistanceX", -1, 1, 34, 3, 46.782151))
sketch2.addConstraint(Sketcher.Constraint("DistanceY", 36, 3, -1, 1, 18.67088))
sketch2.addConstraint(Sketcher.Constraint("DistanceX", -1, 1, 38, 3, 67.661239))
sketch2.addConstraint(Sketcher.Constraint("DistanceY", 41, 3, -1, 1, 15.187719))
sketch2.addConstraint(Sketcher.Constraint("DistanceY", 43, 3, -1, 1, 22.919871))
sketch2.addConstraint(Sketcher.Constraint("DistanceX", 44, 3, -1, 1, 20.186039))
sketch2.addConstraint(Sketcher.Constraint("DistanceY", -1, 1, 45, 3, 6.414839))
sketch2.addConstraint(Sketcher.Constraint("DistanceX", 47, 3, -1, 1, 50.13934))
sketch2.addConstraint(Sketcher.Constraint("DistanceY", 47, 3, -1, 1, 0.21411))
sketch2.addConstraint(Sketcher.Constraint("DistanceX", 49, 3, -1, 1, 43.360132))
sketch2.addConstraint(Sketcher.Constraint("DistanceY", 52, 3, -1, 1, 21.85342))
sketch2.addConstraint(Sketcher.Constraint("DistanceX", 53, 3, -1, 1, 66.316461))
sketch2.addConstraint(Sketcher.Constraint("DistanceX", 56, 3, -1, 1, 10.472658))
sketch2.addConstraint(Sketcher.Constraint("DistanceX", 58, 3, -1, 1, 55.76582))
sketch2.addConstraint(Sketcher.Constraint("DistanceX", 70, 3, -1, 1, 18.724828))
sketch2.addConstraint(Sketcher.Constraint("DistanceX", -1, 1, 7, 3, 16.929565))
sketch2.addConstraint(Sketcher.Constraint("DistanceX", -1, 1, 8, 3, 64.409536))
sketch2.addConstraint(Sketcher.Constraint("DistanceY", 8, 3, -1, 1, 15.225494))
sketch2.addConstraint(Sketcher.Constraint("DistanceX", -1, 1, 10, 3, 72.150575))
sketch2.addConstraint(Sketcher.Constraint("DistanceY", 10, 3, -1, 1, 22.957646))
sketch2.addConstraint(Sketcher.Constraint("DistanceX", -1, 1, 11, 3, 79.984904))
sketch2.addConstraint(Sketcher.Constraint("DistanceY", -1, 1, 12, 3, 6.377064))
sketch2.addConstraint(Sketcher.Constraint("DistanceX", -1, 1, 13, 3, 35.744744))
sketch2.addConstraint(Sketcher.Constraint("DistanceX", -1, 1, 14, 3, 50.031602))
sketch2.addConstraint(Sketcher.Constraint("DistanceY", 14, 3, -1, 1, 0.251885))
sketch2.addConstraint(Sketcher.Constraint("DistanceX", -1, 1, 15, 3, 71.328744))
sketch2.addConstraint(Sketcher.Constraint("DistanceY", -1, 1, 15, 3, 6.540663))
sketch2.addConstraint(Sketcher.Constraint("DistanceY", 19, 3, -1, 1, 21.891195))
sketch2.addConstraint(Sketcher.Constraint("DistanceX", -1, 1, 22, 3, 80.695917))
sketch2.addConstraint(Sketcher.Constraint("DistanceX", -1, 1, 23, 3, 89.698285))
sketch2.addConstraint(Sketcher.Constraint("DistanceX", -1, 1, 24, 3, 35.027656))
sketch2.addConstraint(Sketcher.Constraint("DistanceX", -1, 1, 25, 3, 44.405123))
sketch2.addConstraint(Sketcher.Constraint("DistanceX", -1, 1, 26, 3, 25.368866))
sketch2.addConstraint(Sketcher.Constraint("DistanceX", -1, 1, 27, 3, 57.533575))
sketch2.addConstraint(Sketcher.Constraint("DistanceY", 31, 3, -1, 1, 31.666397))
sketch2.addConstraint(Sketcher.Constraint("DistanceY", 34, 3, -1, 1, 34.292088))
sketch2.addConstraint(Sketcher.Constraint("DistanceX", -1, 1, 35, 3, 68.786535))
sketch2.addConstraint(Sketcher.Constraint("DistanceX", -1, 1, 36, 3, 82.102537))
sketch2.addConstraint(Sketcher.Constraint("DistanceX", -1, 1, 37, 3, 81.446114))
sketch2.addConstraint(Sketcher.Constraint("DistanceY", -1, 1, 37, 3, 3.030228))
sketch2.addConstraint(Sketcher.Constraint("DistanceY", -1, 1, 38, 3, 17.096427))
sketch2.addConstraint(Sketcher.Constraint("DistanceX", 41, 3, -1, 1, 35.761406))
sketch2.addConstraint(Sketcher.Constraint("DistanceX", 42, 3, -1, 1, 35.711982))
sketch2.addConstraint(Sketcher.Constraint("DistanceY", 42, 3, -1, 1, 0.263734))
sketch2.addConstraint(Sketcher.Constraint("DistanceX", 43, 3, -1, 1, 28.020368))
sketch2.addConstraint(Sketcher.Constraint("DistanceY", 44, 3, -1, 1, 30.745206))
sketch2.addConstraint(Sketcher.Constraint("DistanceX", 45, 3, -1, 1, 57.388792))
sketch2.addConstraint(Sketcher.Constraint("DistanceY", -1, 1, 46, 3, 13.444166))
sketch2.addConstraint(Sketcher.Constraint("DistanceY", -1, 1, 48, 3, 6.578437))
sketch2.addConstraint(Sketcher.Constraint("DistanceY", 49, 3, -1, 1, 7.881144))
sketch2.addConstraint(Sketcher.Constraint("DistanceY", -1, 1, 50, 3, 15.199806))
sketch2.addConstraint(Sketcher.Constraint("DistanceY", 51, 3, -1, 1, 14.633105))
sketch2.addConstraint(Sketcher.Constraint("DistanceX", 54, 3, -1, 1, 29.884013))
sketch2.addConstraint(Sketcher.Constraint("DistanceX", 55, 3, -1, 1, 19.475026))
sketch2.addConstraint(Sketcher.Constraint("DistanceX", 57, 3, -1, 1, 65.143286))
sketch2.addConstraint(Sketcher.Constraint("DistanceX", 59, 3, -1, 1, 74.802077))
sketch2.addConstraint(Sketcher.Constraint("DistanceX", 60, 3, -1, 1, 42.637367))
sketch2.addConstraint(Sketcher.Constraint("DistanceY", -1, 1, 60, 3, 5.318595))
sketch2.addConstraint(Sketcher.Constraint("DistanceY", -1, 1, 62, 3, 24.448626))
sketch2.addConstraint(Sketcher.Constraint("DistanceY", 64, 3, -1, 1, 31.628622))
sketch2.addConstraint(Sketcher.Constraint("DistanceY", 65, 3, -1, 1, 40.724765))
sketch2.addConstraint(Sketcher.Constraint("DistanceY", 66, 3, -1, 1, 18.406395))
sketch2.addConstraint(Sketcher.Constraint("DistanceX", 67, 3, -1, 1, 53.388792))
sketch2.addConstraint(Sketcher.Constraint("DistanceY", 67, 3, -1, 1, 34.254313))
sketch2.addConstraint(Sketcher.Constraint("DistanceX", 68, 3, -1, 1, 31.384408))
sketch2.addConstraint(Sketcher.Constraint("DistanceX", 69, 3, -1, 1, 18.068406))
sketch2.addConstraint(Sketcher.Constraint("DistanceY", 69, 3, -1, 1, 18.633105))
sketch2.addConstraint(Sketcher.Constraint("DistanceY", -1, 1, 70, 3, 3.068003))
sketch2.addConstraint(Sketcher.Constraint("DistanceX", 71, 3, -1, 1, 32.509704))
sketch2.addConstraint(Sketcher.Constraint("DistanceY", -1, 1, 71, 3, 17.134202))
pocket1 = body.newObject("PartDesign::Pocket", "Pocket")
pocket1.Profile = sketch2
pocket1.Length = 3
pocket1.Reversed = True

doc.recompute()
